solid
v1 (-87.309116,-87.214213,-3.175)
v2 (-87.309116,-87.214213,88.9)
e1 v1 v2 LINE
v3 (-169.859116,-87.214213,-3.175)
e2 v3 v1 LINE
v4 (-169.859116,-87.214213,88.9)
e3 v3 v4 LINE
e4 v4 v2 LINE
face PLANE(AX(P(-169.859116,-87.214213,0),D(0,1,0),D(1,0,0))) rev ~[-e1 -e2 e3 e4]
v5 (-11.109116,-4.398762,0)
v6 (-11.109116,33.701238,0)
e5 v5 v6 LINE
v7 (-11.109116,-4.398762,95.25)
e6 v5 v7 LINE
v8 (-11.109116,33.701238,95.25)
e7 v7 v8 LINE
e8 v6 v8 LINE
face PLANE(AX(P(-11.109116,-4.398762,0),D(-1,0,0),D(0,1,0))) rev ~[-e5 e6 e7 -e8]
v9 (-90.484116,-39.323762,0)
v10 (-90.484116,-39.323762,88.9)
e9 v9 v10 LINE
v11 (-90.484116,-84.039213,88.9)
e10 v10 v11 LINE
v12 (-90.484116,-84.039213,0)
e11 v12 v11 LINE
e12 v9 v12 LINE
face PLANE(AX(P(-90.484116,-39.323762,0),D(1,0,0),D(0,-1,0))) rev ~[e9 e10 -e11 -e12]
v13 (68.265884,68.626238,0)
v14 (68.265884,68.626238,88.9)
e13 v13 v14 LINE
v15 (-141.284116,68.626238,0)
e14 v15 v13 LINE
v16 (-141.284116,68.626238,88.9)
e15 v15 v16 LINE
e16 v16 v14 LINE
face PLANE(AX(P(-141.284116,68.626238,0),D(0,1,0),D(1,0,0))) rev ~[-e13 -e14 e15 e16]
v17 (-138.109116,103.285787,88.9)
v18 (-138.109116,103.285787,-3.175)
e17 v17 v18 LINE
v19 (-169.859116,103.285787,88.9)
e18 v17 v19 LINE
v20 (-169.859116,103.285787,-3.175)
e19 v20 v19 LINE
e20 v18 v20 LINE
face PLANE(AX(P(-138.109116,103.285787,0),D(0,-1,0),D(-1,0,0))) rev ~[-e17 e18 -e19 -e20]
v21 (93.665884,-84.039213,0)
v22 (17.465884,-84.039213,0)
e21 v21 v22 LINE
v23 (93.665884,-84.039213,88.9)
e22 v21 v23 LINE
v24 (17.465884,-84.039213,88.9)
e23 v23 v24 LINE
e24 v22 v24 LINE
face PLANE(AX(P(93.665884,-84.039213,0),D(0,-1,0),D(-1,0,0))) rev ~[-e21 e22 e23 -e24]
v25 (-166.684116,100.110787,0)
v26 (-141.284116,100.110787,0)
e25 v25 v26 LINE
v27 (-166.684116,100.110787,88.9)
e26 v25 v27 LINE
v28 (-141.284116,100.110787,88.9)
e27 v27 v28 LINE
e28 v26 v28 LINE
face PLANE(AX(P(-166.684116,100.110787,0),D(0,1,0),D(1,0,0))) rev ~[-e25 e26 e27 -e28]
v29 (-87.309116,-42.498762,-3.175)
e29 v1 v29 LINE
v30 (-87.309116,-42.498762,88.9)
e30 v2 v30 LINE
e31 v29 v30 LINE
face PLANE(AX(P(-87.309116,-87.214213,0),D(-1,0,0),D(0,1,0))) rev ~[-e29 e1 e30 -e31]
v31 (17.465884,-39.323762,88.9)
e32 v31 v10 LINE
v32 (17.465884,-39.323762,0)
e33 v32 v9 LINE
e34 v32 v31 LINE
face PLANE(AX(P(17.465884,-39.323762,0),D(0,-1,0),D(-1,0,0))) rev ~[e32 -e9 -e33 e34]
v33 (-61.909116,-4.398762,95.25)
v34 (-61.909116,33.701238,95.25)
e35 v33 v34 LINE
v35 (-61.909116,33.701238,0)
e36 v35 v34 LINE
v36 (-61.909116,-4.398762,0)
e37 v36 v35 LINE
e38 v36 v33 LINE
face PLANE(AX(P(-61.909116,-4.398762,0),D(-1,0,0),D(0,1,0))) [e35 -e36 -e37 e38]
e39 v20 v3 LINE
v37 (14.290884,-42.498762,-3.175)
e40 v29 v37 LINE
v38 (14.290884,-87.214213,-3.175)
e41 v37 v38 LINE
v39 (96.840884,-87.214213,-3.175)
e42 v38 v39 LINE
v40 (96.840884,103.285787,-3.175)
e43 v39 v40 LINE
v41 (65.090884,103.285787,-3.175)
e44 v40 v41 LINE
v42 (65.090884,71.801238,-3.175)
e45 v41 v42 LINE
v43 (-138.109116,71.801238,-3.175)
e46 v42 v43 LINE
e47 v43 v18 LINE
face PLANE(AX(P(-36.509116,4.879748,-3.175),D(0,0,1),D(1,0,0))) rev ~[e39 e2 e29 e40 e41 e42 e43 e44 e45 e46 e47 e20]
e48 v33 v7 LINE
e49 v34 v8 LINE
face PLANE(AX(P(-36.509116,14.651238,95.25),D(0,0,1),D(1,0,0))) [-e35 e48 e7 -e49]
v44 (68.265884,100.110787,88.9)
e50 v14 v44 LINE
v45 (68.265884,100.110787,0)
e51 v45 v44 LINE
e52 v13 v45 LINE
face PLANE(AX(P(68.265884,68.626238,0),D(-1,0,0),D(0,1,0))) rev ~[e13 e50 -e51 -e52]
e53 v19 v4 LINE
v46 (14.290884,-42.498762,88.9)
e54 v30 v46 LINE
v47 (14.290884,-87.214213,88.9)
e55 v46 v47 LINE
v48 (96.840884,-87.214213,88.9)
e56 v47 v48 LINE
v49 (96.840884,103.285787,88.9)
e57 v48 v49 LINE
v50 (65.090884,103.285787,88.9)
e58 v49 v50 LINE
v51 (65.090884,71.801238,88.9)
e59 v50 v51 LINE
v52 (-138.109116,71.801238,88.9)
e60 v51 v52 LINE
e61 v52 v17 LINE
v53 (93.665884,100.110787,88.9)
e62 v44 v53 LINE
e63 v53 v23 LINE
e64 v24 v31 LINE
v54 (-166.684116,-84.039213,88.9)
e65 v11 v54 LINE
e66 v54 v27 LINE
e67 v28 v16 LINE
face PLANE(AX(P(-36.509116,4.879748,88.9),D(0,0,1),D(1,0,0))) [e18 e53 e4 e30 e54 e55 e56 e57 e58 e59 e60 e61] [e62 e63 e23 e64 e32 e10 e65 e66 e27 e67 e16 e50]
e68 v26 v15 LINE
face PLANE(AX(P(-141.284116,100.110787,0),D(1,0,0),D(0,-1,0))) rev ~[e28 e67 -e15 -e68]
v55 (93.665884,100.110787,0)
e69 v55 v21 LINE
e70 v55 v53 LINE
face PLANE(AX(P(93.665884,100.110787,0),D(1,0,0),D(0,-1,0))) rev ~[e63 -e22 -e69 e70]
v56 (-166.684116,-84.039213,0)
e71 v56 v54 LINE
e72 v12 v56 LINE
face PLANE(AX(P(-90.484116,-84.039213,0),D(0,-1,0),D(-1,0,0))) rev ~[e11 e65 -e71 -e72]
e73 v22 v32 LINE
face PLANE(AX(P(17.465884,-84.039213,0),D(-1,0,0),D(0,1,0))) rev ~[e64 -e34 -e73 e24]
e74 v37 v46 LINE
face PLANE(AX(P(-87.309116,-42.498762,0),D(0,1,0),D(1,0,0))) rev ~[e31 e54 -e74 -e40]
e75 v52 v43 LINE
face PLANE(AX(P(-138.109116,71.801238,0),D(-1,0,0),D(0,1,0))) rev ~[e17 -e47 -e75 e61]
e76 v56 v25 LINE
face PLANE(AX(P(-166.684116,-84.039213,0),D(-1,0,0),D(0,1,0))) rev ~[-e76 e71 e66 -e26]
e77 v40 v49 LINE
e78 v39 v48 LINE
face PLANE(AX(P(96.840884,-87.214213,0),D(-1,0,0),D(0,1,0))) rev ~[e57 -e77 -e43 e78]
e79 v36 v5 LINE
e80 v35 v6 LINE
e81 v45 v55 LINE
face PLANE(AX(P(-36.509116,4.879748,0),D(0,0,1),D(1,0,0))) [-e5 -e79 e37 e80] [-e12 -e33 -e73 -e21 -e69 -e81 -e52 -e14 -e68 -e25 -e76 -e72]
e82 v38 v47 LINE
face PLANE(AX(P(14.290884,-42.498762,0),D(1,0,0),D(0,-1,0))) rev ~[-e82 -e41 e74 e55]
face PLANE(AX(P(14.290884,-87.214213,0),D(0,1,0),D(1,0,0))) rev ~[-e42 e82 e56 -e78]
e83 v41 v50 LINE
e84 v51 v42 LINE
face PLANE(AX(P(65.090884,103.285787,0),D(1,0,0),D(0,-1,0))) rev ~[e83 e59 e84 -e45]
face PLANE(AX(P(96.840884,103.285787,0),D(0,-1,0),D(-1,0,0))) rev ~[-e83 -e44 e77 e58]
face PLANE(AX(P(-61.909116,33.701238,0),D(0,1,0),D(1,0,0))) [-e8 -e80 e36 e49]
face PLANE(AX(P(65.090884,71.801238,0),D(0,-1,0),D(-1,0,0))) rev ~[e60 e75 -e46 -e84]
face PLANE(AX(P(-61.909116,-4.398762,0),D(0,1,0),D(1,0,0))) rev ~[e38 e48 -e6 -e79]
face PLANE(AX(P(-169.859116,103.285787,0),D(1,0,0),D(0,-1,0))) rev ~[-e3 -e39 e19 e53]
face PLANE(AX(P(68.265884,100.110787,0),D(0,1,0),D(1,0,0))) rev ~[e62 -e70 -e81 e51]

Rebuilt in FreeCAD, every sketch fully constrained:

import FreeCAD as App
import Part
import Sketcher
Q = App.Units.Quantity

doc = App.newDocument("Part")
body = doc.addObject("PartDesign::Body", "Body")

sketch1 = body.newObject("Sketcher::SketchObject", "Sketch")
sketch1.AttachmentSupport = (doc.getObject("XY_Plane"), [""])
sketch1.MapMode = "FlatFace"
sketch1.addGeometry([
    Part.LineSegment(App.Vector(-138, 103, 0), App.Vector(-170, 103, 0)),
    Part.LineSegment(App.Vector(-170, 103, 0), App.Vector(-170, -87, 0)),
    Part.LineSegment(App.Vector(-170, -87, 0), App.Vector(-87, -87, 0)),
    Part.LineSegment(App.Vector(-87, -87, 0), App.Vector(-87, -42, 0)),
    Part.LineSegment(App.Vector(-87, -42, 0), App.Vector(14, -42, 0)),
    Part.LineSegment(App.Vector(14, -42, 0), App.Vector(14, -87, 0)),
    Part.LineSegment(App.Vector(14, -87, 0), App.Vector(97, -87, 0)),
    Part.LineSegment(App.Vector(97, -87, 0), App.Vector(97, 103, 0)),
    Part.LineSegment(App.Vector(97, 103, 0), App.Vector(65, 103, 0)),
    Part.LineSegment(App.Vector(65, 103, 0), App.Vector(65, 72, 0)),
    Part.LineSegment(App.Vector(65, 72, 0), App.Vector(-138, 72, 0)),
    Part.LineSegment(App.Vector(-138, 72, 0), App.Vector(-138, 103, 0)),
], False)
sketch1.addConstraint([
    Sketcher.Constraint("Coincident", 0, 2, 1, 1),
    Sketcher.Constraint("Coincident", 1, 2, 2, 1),
    Sketcher.Constraint("Coincident", 2, 2, 3, 1),
    Sketcher.Constraint("Coincident", 3, 2, 4, 1),
    Sketcher.Constraint("Coincident", 4, 2, 5, 1),
    Sketcher.Constraint("Coincident", 5, 2, 6, 1),
    Sketcher.Constraint("Coincident", 6, 2, 7, 1),
    Sketcher.Constraint("Coincident", 7, 2, 8, 1),
    Sketcher.Constraint("Coincident", 8, 2, 9, 1),
    Sketcher.Constraint("Coincident", 9, 2, 10, 1),
    Sketcher.Constraint("Coincident", 10, 2, 11, 1),
    Sketcher.Constraint("Coincident", 11, 2, 0, 1),
    Sketcher.Constraint("Horizontal", 0),
    Sketcher.Constraint("Vertical", 1),
    Sketcher.Constraint("Horizontal", 2),
    Sketcher.Constraint("Vertical", 3),
    Sketcher.Constraint("Horizontal", 4),
    Sketcher.Constraint("Vertical", 5),
    Sketcher.Constraint("Horizontal", 6),
    Sketcher.Constraint("Vertical", 7),
    Sketcher.Constraint("Horizontal", 8),
    Sketcher.Constraint("Vertical", 9),
    Sketcher.Constraint("Horizontal", 10),
    Sketcher.Constraint("Vertical", 11),
    Sketcher.Constraint("Horizontal", 2, 2, 5, 2),
    Sketcher.Constraint("Horizontal", 0, 2, 7, 2),
    Sketcher.Constraint("Equal", 2, 6),
    Sketcher.Constraint("Equal", 0, 8),
    Sketcher.Constraint("DistanceX", 4, 1, 4, 2, Q("4 in")),
    Sketcher.Constraint("DistanceX", 10, 2, 10, 1, Q("8 in")),
    Sketcher.Constraint("DistanceY", 1, 2, 1, 1, Q("7.5 in")),
    Sketcher.Constraint("DistanceX", 0, 2, 0, 1, Q("1.25 in")),
    Sketcher.Constraint("DistanceY", 4, 2, 9, 2, Q("4.5 in")),
    Sketcher.Constraint("DistanceY", 3, 1, 3, 2, Q("44.715451 mm")),
    Sketcher.Constraint("DistanceX", 0, 2, -1, 1, Q("169.859116 mm")),
    Sketcher.Constraint("DistanceY", -1, 1, 0, 2, Q("103.285787 mm")),
])
pad1 = body.newObject("PartDesign::Pad", "Pad")
pad1.Profile = sketch1
pad1.Length = Q("0.125 in")
pad1.Reversed = True

sketch2 = body.newObject("Sketcher::SketchObject", "Sketch001")
sketch2.AttachmentSupport = (doc.getObject("XY_Plane"), [""])
sketch2.MapMode = "FlatFace"
sketch2.addGeometry([
    Part.LineSegment(App.Vector(-138, 103, 0), App.Vector(-170, 103, 0)),
    Part.LineSegment(App.Vector(-170, 103, 0), App.Vector(-170, -87, 0)),
    Part.LineSegment(App.Vector(-170, -87, 0), App.Vector(-87, -87, 0)),
    Part.LineSegment(App.Vector(-87, -87, 0), App.Vector(-87, -42, 0)),
    Part.LineSegment(App.Vector(-87, -42, 0), App.Vector(14, -42, 0)),
    Part.LineSegment(App.Vector(14, -42, 0), App.Vector(14, -87, 0)),
    Part.LineSegment(App.Vector(14, -87, 0), App.Vector(97, -87, 0)),
    Part.LineSegment(App.Vector(97, -87, 0), App.Vector(97, 103, 0)),
    Part.LineSegment(App.Vector(97, 103, 0), App.Vector(65, 103, 0)),
    Part.LineSegment(App.Vector(65, 103, 0), App.Vector(65, 72, 0)),
    Part.LineSegment(App.Vector(65, 72, 0), App.Vector(-138, 72, 0)),
    Part.LineSegment(App.Vector(-138, 72, 0), App.Vector(-138, 103, 0)),
    Part.LineSegment(App.Vector(-90, -84, 0), App.Vector(-167, -84, 0)),
    Part.LineSegment(App.Vector(-167, -84, 0), App.Vector(-167, 100, 0)),
    Part.LineSegment(App.Vector(-167, 100, 0), App.Vector(-141, 100, 0)),
    Part.LineSegment(App.Vector(-141, 100, 0), App.Vector(-141, 69, 0)),
    Part.LineSegment(App.Vector(-141, 69, 0), App.Vector(68, 69, 0)),
    Part.LineSegment(App.Vector(68, 69, 0), App.Vector(68, 100, 0)),
    Part.LineSegment(App.Vector(68, 100, 0), App.Vector(94, 100, 0)),
    Part.LineSegment(App.Vector(94, 100, 0), App.Vector(94, -84, 0)),
    Part.LineSegment(App.Vector(94, -84, 0), App.Vector(17, -84, 0)),
    Part.LineSegment(App.Vector(17, -84, 0), App.Vector(17, -39, 0)),
    Part.LineSegment(App.Vector(17, -39, 0), App.Vector(-90, -39, 0)),
    Part.LineSegment(App.Vector(-90, -39, 0), App.Vector(-90, -84, 0)),
], False)
sketch2.addConstraint([
    Sketcher.Constraint("Coincident", 0, 2, 1, 1),
    Sketcher.Constraint("Coincident", 1, 2, 2, 1),
    Sketcher.Constraint("Coincident", 2, 2, 3, 1),
    Sketcher.Constraint("Coincident", 3, 2, 4, 1),
    Sketcher.Constraint("Coincident", 4, 2, 5, 1),
    Sketcher.Constraint("Coincident", 5, 2, 6, 1),
    Sketcher.Constraint("Coincident", 6, 2, 7, 1),
    Sketcher.Constraint("Coincident", 7, 2, 8, 1),
    Sketcher.Constraint("Coincident", 8, 2, 9, 1),
    Sketcher.Constraint("Coincident", 9, 2, 10, 1),
    Sketcher.Constraint("Coincident", 10, 2, 11, 1),
    Sketcher.Constraint("Coincident", 11, 2, 0, 1),
    Sketcher.Constraint("Coincident", 12, 2, 13, 1),
    Sketcher.Constraint("Coincident", 13, 2, 14, 1),
    Sketcher.Constraint("Coincident", 14, 2, 15, 1),
    Sketcher.Constraint("Coincident", 15, 2, 16, 1),
    Sketcher.Constraint("Coincident", 16, 2, 17, 1),
    Sketcher.Constraint("Coincident", 17, 2, 18, 1),
    Sketcher.Constraint("Coincident", 18, 2, 19, 1),
    Sketcher.Constraint("Coincident", 19, 2, 20, 1),
    Sketcher.Constraint("Coincident", 20, 2, 21, 1),
    Sketcher.Constraint("Coincident", 21, 2, 22, 1),
    Sketcher.Constraint("Coincident", 22, 2, 23, 1),
    Sketcher.Constraint("Coincident", 23, 2, 12, 1),
    Sketcher.Constraint("Horizontal", 0),
    Sketcher.Constraint("Vertical", 1),
    Sketcher.Constraint("Horizontal", 2),
    Sketcher.Constraint("Vertical", 3),
    Sketcher.Constraint("Horizontal", 4),
    Sketcher.Constraint("Vertical", 5),
    Sketcher.Constraint("Horizontal", 6),
    Sketcher.Constraint("Vertical", 7),
    Sketcher.Constraint("Horizontal", 8),
    Sketcher.Constraint("Vertical", 9),
    Sketcher.Constraint("Horizontal", 10),
    Sketcher.Constraint("Vertical", 11),
    Sketcher.Constraint("Horizontal", 12),
    Sketcher.Constraint("Vertical", 13),
    Sketcher.Constraint("Horizontal", 14),
    Sketcher.Constraint("Vertical", 15),
    Sketcher.Constraint("Horizontal", 16),
    Sketcher.Constraint("Vertical", 17),
    Sketcher.Constraint("Horizontal", 18),
    Sketcher.Constraint("Vertical", 19),
    Sketcher.Constraint("Horizontal", 20),
    Sketcher.Constraint("Vertical", 21),
    Sketcher.Constraint("Horizontal", 22),
    Sketcher.Constraint("Vertical", 23),
    Sketcher.Constraint("Horizontal", 2, 2, 5, 2),
    Sketcher.Constraint("Horizontal", 0, 2, 7, 2),
    Sketcher.Constraint("Horizontal", 14, 2, 17, 2),
    Sketcher.Constraint("Horizontal", 12, 2, 19, 2),
    Sketcher.Constraint("Equal", 2, 6),
    Sketcher.Constraint("Equal", 0, 8),
    Sketcher.Constraint("Equal", 14, 18),
    Sketcher.Constraint("Equal", 12, 20),
    Sketcher.Constraint("Equal", 11, 15),
    Sketcher.Constraint("Equal", 5, 21),
    Sketcher.Constraint("DistanceX", 4, 1, 4, 2, Q("4 in")),
    Sketcher.Constraint("DistanceX", 10, 2, 10, 1, Q("8 in")),
    Sketcher.Constraint("DistanceX", 12, 2, 12, 1, Q("3 in")),
    Sketcher.Constraint("DistanceX", 14, 1, 14, 2, Q("1 in")),
    Sketcher.Constraint("DistanceY", 1, 2, 1, 1, Q("7.5 in")),
    Sketcher.Constraint("DistanceX", 0, 2, 0, 1, Q("1.25 in")),
    Sketcher.Constraint("DistanceX", 16, 1, 16, 2, Q("8.25 in")),
    Sketcher.Constraint("DistanceY", 13, 1, 13, 2, Q("7.25 in")),
    Sketcher.Constraint("DistanceY", 4, 2, 9, 2, Q("4.5 in")),
    Sketcher.Constraint("DistanceX", 1, 2, 12, 2, Q("0.125 in")),
    Sketcher.Constraint("DistanceY", 1, 2, 12, 2, Q("0.125 in")),
    Sketcher.Constraint("DistanceY", 3, 1, 3, 2, Q("44.715451 mm")),
    Sketcher.Constraint("DistanceY", -1, 1, 15, 2, Q("68.626238 mm")),
    Sketcher.Constraint("DistanceX", 0, 2, -1, 1, Q("169.859116 mm")),
])
pad2 = body.newObject("PartDesign::Pad", "Pad001")
pad2.Profile = sketch2
pad2.Length = Q("3.5 in")

sketch3 = body.newObject("Sketcher::SketchObject", "Sketch002")
sketch3.AttachmentSupport = (doc.getObject("XY_Plane"), [""])
sketch3.MapMode = "FlatFace"
sketch3.addGeometry([
    Part.LineSegment(App.Vector(-62, 34, 0), App.Vector(-62, -4, 0)),
    Part.LineSegment(App.Vector(-62, -4, 0), App.Vector(-11, -4, 0)),
    Part.LineSegment(App.Vector(-11, -4, 0), App.Vector(-11, 34, 0)),
    Part.LineSegment(App.Vector(-11, 34, 0), App.Vector(-62, 34, 0)),
], False)
sketch3.addConstraint([
    Sketcher.Constraint("Coincident", 0, 2, 1, 1),
    Sketcher.Constraint("Coincident", 1, 2, 2, 1),
    Sketcher.Constraint("Coincident", 2, 2, 3, 1),
    Sketcher.Constraint("Coincident", 3, 2, 0, 1),
    Sketcher.Constraint("Vertical", 0),
    Sketcher.Constraint("Horizontal", 1),
    Sketcher.Constraint("Vertical", 2),
    Sketcher.Constraint("Horizontal", 3),
    Sketcher.Constraint("DistanceX", 1, 1, 1, 2, Q("2 in")),
    Sketcher.Constraint("DistanceY", 0, 2, 0, 1, Q("1.5 in")),
    Sketcher.Constraint("DistanceY", 0, 2, -1, 1, Q("4.398762 mm")),
    Sketcher.Constraint("DistanceX", 0, 2, -1, 1, Q("61.909116 mm")),
])
pad3 = body.newObject("PartDesign::Pad", "Pad002")
pad3.Profile = sketch3
pad3.Length = Q("3.75 in")

doc.recompute()
